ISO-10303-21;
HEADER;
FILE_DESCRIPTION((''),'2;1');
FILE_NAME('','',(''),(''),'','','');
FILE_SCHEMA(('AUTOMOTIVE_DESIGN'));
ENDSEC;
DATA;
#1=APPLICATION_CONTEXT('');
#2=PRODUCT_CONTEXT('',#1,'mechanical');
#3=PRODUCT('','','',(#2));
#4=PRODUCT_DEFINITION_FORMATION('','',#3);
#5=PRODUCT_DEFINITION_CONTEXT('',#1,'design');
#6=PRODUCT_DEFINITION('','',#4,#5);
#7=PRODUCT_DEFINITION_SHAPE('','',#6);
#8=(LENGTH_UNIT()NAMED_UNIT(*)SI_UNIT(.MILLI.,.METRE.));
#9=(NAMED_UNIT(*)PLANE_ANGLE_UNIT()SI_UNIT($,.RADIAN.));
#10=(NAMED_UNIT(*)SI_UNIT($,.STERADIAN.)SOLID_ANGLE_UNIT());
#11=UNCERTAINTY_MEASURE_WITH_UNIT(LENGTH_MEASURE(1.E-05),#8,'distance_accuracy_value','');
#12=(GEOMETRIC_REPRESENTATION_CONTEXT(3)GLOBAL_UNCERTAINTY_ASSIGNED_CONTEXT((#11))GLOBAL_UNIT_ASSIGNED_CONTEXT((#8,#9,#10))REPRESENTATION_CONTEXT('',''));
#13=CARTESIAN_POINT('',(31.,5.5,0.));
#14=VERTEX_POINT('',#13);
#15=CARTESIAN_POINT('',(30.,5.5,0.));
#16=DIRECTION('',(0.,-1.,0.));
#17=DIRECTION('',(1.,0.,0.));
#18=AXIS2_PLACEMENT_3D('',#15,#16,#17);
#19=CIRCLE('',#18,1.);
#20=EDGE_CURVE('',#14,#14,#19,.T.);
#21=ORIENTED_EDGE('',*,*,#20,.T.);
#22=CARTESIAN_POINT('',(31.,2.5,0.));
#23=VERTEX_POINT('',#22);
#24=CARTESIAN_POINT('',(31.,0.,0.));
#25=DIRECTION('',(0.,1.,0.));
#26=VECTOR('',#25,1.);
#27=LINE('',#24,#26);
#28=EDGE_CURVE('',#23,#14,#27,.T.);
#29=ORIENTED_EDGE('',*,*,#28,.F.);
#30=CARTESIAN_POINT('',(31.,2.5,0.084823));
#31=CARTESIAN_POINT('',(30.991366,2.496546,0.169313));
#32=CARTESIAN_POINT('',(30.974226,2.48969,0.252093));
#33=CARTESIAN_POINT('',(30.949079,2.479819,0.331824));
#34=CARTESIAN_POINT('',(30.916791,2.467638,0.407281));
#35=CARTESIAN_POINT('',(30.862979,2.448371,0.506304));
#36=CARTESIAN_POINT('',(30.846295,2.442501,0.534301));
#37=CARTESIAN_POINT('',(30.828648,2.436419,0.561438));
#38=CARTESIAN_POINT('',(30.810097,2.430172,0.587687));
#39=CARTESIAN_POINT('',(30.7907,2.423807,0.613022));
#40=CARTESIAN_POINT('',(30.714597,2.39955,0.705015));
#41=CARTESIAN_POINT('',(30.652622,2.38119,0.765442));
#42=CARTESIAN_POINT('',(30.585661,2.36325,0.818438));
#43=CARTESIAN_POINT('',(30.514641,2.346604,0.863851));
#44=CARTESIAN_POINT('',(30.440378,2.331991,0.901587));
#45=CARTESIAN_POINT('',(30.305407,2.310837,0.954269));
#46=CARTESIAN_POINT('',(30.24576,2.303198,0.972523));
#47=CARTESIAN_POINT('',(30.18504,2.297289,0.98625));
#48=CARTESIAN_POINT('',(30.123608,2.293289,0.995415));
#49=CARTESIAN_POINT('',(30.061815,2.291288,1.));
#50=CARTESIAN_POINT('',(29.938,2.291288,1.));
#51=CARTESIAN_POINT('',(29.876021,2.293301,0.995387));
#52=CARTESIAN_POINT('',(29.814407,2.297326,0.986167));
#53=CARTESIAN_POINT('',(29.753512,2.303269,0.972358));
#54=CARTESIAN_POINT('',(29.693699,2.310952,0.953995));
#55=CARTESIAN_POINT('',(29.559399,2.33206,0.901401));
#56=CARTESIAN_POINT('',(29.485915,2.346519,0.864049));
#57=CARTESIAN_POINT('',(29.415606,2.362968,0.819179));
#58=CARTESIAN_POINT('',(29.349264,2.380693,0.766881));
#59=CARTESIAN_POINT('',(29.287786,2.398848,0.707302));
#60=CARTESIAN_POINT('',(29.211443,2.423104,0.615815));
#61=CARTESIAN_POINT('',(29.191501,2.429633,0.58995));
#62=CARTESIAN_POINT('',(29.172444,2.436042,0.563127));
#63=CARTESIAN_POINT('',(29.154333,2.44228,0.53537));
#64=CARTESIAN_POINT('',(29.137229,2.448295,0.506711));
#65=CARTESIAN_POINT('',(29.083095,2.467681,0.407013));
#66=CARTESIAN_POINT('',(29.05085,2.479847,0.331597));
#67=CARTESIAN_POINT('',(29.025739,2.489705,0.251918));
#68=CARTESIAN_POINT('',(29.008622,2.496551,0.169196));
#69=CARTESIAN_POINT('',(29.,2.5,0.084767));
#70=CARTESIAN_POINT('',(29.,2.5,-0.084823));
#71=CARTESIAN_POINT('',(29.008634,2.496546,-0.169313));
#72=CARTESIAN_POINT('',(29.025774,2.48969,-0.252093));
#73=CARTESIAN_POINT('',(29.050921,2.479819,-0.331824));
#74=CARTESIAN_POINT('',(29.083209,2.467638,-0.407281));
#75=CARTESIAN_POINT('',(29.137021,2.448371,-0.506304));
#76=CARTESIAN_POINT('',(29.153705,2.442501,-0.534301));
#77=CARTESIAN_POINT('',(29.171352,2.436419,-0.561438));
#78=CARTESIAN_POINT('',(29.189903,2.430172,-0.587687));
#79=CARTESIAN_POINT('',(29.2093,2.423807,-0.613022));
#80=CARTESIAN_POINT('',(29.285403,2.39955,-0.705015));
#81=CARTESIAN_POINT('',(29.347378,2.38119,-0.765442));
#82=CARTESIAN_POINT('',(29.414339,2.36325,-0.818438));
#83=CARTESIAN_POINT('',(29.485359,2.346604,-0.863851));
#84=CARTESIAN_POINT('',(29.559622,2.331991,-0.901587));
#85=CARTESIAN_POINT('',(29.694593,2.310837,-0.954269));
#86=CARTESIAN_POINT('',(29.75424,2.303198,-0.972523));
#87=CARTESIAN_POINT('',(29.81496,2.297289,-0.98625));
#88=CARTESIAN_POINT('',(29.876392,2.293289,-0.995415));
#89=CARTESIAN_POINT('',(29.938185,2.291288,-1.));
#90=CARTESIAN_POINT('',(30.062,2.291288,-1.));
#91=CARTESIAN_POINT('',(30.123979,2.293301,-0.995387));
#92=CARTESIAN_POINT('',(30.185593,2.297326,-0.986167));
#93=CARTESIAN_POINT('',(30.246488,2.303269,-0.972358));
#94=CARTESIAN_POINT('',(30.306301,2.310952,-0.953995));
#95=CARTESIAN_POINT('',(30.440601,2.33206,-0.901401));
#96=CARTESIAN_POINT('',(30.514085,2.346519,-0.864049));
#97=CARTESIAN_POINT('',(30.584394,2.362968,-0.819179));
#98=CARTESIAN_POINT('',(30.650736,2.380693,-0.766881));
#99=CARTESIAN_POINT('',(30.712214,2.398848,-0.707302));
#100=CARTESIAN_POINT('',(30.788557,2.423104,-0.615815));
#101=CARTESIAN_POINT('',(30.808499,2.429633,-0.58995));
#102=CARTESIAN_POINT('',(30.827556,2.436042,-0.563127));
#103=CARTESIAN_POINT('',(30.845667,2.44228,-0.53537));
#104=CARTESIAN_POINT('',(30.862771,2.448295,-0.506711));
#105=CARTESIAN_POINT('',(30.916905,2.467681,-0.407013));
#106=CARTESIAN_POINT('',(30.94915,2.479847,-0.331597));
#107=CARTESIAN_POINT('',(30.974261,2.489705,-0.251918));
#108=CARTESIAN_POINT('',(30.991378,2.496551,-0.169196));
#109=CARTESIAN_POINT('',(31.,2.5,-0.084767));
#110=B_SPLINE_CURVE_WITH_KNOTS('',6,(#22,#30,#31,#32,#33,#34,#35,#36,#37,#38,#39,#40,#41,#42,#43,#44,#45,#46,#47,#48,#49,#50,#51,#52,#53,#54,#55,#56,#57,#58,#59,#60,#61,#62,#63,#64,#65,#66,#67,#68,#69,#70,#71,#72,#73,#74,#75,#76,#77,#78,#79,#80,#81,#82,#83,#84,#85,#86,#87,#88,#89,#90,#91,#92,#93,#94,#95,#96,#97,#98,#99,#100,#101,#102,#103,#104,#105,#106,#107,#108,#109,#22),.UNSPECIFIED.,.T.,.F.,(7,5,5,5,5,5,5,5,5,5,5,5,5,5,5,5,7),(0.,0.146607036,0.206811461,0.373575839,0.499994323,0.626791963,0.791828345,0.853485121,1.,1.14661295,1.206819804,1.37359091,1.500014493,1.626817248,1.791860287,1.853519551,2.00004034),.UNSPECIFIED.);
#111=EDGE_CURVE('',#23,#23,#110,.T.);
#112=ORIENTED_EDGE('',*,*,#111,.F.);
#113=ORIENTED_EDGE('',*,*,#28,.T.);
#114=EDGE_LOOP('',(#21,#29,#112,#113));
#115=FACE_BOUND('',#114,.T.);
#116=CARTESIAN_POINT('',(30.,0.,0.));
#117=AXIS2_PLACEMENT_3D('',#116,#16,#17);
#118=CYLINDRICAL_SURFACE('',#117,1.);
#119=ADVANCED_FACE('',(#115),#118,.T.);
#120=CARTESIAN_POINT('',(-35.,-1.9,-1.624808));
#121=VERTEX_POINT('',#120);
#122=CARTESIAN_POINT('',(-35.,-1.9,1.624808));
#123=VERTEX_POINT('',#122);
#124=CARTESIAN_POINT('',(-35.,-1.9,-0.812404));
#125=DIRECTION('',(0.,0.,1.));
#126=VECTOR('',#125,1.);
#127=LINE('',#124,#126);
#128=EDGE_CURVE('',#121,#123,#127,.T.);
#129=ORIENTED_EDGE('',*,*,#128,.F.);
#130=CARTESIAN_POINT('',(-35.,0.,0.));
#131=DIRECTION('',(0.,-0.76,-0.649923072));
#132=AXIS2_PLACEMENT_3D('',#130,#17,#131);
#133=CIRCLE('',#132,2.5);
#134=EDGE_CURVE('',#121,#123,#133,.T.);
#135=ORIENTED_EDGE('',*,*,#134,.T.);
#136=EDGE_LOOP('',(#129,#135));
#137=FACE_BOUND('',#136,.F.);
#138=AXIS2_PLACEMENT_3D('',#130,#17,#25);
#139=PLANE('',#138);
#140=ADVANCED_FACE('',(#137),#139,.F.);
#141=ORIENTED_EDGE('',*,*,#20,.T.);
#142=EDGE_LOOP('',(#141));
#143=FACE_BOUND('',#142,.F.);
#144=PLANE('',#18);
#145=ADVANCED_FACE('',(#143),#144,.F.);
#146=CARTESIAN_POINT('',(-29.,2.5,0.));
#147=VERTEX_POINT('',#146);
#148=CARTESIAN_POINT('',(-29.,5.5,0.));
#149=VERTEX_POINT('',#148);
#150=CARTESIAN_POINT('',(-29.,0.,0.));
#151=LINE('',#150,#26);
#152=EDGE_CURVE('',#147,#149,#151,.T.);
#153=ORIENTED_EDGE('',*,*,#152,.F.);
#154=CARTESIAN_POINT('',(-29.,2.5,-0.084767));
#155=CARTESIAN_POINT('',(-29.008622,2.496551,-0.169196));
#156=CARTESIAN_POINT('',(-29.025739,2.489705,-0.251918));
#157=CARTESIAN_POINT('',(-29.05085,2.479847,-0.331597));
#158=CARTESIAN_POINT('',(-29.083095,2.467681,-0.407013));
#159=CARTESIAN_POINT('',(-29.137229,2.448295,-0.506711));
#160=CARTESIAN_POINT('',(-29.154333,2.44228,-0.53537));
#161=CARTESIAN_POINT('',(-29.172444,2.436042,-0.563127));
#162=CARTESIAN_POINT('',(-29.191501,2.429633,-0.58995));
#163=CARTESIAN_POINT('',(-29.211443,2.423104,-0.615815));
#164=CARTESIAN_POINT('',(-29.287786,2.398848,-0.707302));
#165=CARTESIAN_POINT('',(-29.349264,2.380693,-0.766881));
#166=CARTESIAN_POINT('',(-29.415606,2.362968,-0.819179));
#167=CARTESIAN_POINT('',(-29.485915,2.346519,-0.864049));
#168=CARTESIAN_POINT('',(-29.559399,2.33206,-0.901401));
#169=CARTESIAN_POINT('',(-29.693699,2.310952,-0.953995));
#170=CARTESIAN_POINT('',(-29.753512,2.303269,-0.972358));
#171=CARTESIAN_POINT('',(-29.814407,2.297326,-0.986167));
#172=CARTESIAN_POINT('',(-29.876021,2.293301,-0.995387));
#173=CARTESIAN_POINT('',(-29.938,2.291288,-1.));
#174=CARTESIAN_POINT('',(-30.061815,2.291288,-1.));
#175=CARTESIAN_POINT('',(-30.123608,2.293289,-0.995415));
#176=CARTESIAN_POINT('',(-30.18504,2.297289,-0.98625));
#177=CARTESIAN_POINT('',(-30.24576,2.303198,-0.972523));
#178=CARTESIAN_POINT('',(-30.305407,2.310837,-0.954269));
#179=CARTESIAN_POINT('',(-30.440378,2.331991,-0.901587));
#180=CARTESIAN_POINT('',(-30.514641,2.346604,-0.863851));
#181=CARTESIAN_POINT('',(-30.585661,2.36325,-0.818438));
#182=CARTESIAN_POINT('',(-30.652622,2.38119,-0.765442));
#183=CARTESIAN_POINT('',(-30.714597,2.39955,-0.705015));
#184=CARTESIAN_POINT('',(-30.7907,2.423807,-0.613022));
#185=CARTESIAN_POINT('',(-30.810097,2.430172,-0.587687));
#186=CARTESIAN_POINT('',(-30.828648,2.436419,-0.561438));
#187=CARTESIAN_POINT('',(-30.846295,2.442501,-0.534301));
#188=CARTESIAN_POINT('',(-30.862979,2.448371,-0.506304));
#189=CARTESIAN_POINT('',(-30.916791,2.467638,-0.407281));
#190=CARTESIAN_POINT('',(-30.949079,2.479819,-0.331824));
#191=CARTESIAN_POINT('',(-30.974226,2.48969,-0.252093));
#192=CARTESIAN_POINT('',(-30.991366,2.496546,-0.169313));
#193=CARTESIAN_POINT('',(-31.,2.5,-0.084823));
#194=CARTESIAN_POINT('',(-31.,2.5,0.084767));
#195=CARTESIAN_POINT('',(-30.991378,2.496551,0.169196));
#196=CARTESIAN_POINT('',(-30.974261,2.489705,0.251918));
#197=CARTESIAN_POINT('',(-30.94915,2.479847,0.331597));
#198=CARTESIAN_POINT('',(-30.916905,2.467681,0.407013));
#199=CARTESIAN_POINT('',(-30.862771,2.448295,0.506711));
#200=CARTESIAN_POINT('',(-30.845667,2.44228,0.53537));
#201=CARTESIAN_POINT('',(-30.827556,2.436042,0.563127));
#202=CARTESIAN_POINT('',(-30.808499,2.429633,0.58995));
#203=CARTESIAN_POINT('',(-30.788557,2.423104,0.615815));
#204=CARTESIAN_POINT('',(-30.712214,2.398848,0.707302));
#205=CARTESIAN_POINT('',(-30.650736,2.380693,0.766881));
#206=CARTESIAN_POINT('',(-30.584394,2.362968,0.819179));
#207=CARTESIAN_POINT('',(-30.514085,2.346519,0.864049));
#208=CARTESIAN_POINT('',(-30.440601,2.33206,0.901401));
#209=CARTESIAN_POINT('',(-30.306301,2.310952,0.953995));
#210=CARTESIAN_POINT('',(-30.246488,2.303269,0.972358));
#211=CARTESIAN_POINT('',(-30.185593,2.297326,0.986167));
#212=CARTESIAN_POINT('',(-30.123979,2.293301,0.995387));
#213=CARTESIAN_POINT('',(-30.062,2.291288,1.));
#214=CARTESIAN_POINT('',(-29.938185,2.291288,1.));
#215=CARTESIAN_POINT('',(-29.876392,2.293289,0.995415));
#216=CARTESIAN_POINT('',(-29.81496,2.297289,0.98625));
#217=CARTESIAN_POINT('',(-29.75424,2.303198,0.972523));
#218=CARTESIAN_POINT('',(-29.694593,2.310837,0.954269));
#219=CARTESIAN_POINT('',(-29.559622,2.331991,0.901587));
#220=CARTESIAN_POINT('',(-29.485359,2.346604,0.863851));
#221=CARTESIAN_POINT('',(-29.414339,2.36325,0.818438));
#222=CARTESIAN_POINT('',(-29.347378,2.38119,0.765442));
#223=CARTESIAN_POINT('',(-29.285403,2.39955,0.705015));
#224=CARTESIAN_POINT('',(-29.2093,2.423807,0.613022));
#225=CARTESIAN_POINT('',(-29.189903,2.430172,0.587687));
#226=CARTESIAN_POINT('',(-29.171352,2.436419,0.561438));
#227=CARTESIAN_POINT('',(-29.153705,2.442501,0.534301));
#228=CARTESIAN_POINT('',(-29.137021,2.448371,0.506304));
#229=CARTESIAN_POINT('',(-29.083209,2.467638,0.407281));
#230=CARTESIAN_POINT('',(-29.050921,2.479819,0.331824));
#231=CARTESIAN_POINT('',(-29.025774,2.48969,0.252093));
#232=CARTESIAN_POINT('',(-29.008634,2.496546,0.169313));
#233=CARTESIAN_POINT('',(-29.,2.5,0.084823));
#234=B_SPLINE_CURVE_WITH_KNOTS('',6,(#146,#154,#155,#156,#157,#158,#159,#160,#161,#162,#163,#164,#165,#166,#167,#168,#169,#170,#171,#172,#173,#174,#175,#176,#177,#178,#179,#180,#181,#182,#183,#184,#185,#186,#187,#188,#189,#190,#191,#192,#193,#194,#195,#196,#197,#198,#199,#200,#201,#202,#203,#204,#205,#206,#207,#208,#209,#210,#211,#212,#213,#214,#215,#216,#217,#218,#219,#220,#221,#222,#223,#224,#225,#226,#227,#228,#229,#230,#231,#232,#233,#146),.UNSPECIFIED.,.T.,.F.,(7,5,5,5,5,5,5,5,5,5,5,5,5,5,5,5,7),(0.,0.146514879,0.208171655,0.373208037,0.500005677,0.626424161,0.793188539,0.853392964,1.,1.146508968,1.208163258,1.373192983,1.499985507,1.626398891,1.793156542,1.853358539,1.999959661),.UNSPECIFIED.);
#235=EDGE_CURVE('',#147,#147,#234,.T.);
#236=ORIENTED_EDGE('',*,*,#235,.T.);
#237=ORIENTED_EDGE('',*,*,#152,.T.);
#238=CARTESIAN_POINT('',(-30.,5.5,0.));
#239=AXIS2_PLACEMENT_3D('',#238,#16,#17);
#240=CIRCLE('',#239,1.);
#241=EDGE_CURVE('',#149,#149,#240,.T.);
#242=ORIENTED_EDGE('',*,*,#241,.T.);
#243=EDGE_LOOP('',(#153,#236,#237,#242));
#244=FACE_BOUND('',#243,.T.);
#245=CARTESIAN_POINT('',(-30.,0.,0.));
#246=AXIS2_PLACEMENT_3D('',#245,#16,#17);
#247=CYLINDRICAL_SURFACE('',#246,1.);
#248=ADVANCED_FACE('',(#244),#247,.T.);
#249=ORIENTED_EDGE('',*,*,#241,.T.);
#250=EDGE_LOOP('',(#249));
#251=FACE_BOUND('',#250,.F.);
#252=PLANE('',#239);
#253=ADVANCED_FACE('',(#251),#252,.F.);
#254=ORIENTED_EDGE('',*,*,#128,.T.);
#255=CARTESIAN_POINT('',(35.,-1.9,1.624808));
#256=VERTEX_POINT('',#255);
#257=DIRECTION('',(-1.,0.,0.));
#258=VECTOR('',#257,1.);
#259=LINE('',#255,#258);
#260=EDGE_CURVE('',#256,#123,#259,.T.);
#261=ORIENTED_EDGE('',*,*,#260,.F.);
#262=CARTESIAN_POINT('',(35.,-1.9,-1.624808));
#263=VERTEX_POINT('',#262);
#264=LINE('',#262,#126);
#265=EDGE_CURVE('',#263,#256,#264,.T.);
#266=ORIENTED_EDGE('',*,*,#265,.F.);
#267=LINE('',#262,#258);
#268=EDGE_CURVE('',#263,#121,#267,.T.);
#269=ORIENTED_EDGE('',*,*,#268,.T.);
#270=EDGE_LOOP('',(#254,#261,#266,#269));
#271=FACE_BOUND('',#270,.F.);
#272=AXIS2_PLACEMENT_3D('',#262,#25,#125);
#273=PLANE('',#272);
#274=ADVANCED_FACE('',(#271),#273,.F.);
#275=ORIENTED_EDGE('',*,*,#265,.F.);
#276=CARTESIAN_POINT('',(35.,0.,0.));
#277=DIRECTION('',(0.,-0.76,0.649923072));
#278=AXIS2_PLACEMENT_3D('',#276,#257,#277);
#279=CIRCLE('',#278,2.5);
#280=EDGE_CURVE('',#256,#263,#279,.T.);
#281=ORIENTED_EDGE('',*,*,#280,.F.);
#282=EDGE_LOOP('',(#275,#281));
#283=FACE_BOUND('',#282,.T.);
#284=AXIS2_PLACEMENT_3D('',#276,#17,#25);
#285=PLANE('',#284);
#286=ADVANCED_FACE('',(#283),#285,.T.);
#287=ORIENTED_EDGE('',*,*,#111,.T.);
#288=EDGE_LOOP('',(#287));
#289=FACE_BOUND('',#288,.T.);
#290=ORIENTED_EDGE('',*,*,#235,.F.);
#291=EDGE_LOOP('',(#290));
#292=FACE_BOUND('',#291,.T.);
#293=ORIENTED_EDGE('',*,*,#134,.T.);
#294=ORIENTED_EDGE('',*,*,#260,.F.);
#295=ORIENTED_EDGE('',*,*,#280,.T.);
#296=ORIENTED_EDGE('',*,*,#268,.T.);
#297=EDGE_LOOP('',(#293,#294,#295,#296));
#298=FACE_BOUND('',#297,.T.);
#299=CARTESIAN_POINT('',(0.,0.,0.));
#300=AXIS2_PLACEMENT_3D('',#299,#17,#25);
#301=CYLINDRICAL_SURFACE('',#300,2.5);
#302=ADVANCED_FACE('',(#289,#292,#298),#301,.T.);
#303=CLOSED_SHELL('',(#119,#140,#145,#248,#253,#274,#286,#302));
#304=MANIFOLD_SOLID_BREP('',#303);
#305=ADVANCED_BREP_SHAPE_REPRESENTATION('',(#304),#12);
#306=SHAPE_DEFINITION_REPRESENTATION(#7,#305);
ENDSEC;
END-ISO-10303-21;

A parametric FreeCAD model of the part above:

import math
import FreeCAD as App
import Part
import Sketcher

V = App.Vector

doc = App.newDocument("Part")
body = doc.addObject("PartDesign::Body", "Body")

sketch1 = body.newObject("Sketcher::SketchObject", "Sketch")
sketch1.AttachmentSupport = (doc.getObject("YZ_Plane"), [""])
sketch1.MapMode = "FlatFace"
sketch1.addGeometry(Part.Circle(V(0, 0, 0), V(0, 0, 1), 2.5), False)
sketch1.addConstraint([
    Sketcher.Constraint("Coincident", 0, 3, -1, 1),
    Sketcher.Constraint("Diameter", 0, 5.0),
])
pad1 = body.newObject("PartDesign::Pad", "Pad")
pad1.Profile = sketch1
pad1.Length = 70
pad1.Midplane = True

sketch2 = body.newObject("Sketcher::SketchObject", "Sketch001")
sketch2.AttachmentSupport = (doc.getObject("XZ_Plane"), [""])
sketch2.MapMode = "FlatFace"
sketch2.addGeometry([
    Part.Circle(V(-30, 0, 0), V(0, 0, 1), 1),
    Part.Circle(V(30, 0, 0), V(0, 0, 1), 1),
], False)
sketch2.addConstraint([
    Sketcher.Constraint("Equal", 0, 1),
    Sketcher.Constraint("Symmetric", 0, 3, 1, 3, -1, 1),
    Sketcher.Constraint("PointOnObject", 0, 3, -1),
    Sketcher.Constraint("Diameter", 0, 2.0),
    Sketcher.Constraint("DistanceX", 0, 3, -1, 1, 30.0),
])
pad2 = body.newObject("PartDesign::Pad", "Pad001")
pad2.Profile = sketch2
pad2.Length = 5.5
pad2.Reversed = True

sketch3 = body.newObject("Sketcher::SketchObject", "Sketch002")
sketch3.AttachmentSupport = (doc.getObject("YZ_Plane"), [""])
sketch3.MapMode = "FlatFace"
sketch3.AttachmentOffset = App.Placement(V(0, 0, 35), App.Rotation())
sketch3.addGeometry([
    Part.LineSegment(V(-1.9, -1.6, 0), V(-1.9, 1.6, 0)),
    Part.ArcOfCircle(Part.Circle(V(0, 0, 0), V(0, 0, 1), 2.5), math.radians(139), math.radians(221)),
], False)
sketch3.addConstraint([
    Sketcher.Constraint("Coincident", 0, 1, 1, 2),
    Sketcher.Constraint("Coincident", 1, 1, 0, 2),
    Sketcher.Constraint("Vertical", 0),
    Sketcher.Constraint("Coincident", 1, 3, -1, 1),
    Sketcher.Constraint("Radius", 1, 2.5),
    Sketcher.Constraint("DistanceX", 0, 1, -1, 1, 1.9),
])
pocket1 = body.newObject("PartDesign::Pocket", "Pocket")
pocket1.Profile = sketch3
pocket1.Type = "ThroughAll"

doc.recompute()
